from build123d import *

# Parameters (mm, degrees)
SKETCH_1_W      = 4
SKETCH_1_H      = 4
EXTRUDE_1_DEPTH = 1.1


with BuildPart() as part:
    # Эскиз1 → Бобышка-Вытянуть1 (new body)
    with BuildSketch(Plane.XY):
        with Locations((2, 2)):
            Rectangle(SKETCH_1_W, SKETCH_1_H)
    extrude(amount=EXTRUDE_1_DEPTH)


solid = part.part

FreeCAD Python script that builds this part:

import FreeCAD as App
import Part
import Sketcher
Q = App.Units.Quantity

doc = App.newDocument("Part")
body = doc.addObject("PartDesign::Body", "Body")

sketch1 = doc.addObject("Sketcher::SketchObject", "Sketch")
body.addObject(sketch1)
sketch1.AttachmentSupport = (doc.XY_Plane, [""])
sketch1.MapMode = "FlatFace"
sketch1.addGeometry(Part.LineSegment(App.Vector(0, 4, 0), App.Vector(0, 0, 0)), False)
sketch1.addGeometry(Part.LineSegment(App.Vector(0, 0, 0), App.Vector(4, 0, 0)), False)
sketch1.addGeometry(Part.LineSegment(App.Vector(4, 0, 0), App.Vector(4, 4, 0)), False)
sketch1.addGeometry(Part.LineSegment(App.Vector(4, 4, 0), App.Vector(0, 4, 0)), False)
sketch1.addConstraint(Sketcher.Constraint("Coincident", 0, 2, 1, 1))
sketch1.addConstraint(Sketcher.Constraint("Coincident", 1, 2, 2, 1))
sketch1.addConstraint(Sketcher.Constraint("Coincident", 2, 2, 3, 1))
sketch1.addConstraint(Sketcher.Constraint("Coincident", 3, 2, 0, 1))
sketch1.addConstraint(Sketcher.Constraint("Vertical", 0))
sketch1.addConstraint(Sketcher.Constraint("Horizontal", 1))
sketch1.addConstraint(Sketcher.Constraint("Vertical", 2))
sketch1.addConstraint(Sketcher.Constraint("Horizontal", 3))
sketch1.addConstraint(Sketcher.Constraint("Coincident", 0, 2, -1, 1))
sketch1.addConstraint(Sketcher.Constraint("Equal", 3, 0))
sketch1.addConstraint(Sketcher.Constraint("DistanceX", 1, 1, 1, 2, Q("4 mm")))
pad1 = doc.addObject("PartDesign::Pad", "Pad")
body.addObject(pad1)
pad1.Profile = sketch1
pad1.Length = 1.1

doc.recompute()
